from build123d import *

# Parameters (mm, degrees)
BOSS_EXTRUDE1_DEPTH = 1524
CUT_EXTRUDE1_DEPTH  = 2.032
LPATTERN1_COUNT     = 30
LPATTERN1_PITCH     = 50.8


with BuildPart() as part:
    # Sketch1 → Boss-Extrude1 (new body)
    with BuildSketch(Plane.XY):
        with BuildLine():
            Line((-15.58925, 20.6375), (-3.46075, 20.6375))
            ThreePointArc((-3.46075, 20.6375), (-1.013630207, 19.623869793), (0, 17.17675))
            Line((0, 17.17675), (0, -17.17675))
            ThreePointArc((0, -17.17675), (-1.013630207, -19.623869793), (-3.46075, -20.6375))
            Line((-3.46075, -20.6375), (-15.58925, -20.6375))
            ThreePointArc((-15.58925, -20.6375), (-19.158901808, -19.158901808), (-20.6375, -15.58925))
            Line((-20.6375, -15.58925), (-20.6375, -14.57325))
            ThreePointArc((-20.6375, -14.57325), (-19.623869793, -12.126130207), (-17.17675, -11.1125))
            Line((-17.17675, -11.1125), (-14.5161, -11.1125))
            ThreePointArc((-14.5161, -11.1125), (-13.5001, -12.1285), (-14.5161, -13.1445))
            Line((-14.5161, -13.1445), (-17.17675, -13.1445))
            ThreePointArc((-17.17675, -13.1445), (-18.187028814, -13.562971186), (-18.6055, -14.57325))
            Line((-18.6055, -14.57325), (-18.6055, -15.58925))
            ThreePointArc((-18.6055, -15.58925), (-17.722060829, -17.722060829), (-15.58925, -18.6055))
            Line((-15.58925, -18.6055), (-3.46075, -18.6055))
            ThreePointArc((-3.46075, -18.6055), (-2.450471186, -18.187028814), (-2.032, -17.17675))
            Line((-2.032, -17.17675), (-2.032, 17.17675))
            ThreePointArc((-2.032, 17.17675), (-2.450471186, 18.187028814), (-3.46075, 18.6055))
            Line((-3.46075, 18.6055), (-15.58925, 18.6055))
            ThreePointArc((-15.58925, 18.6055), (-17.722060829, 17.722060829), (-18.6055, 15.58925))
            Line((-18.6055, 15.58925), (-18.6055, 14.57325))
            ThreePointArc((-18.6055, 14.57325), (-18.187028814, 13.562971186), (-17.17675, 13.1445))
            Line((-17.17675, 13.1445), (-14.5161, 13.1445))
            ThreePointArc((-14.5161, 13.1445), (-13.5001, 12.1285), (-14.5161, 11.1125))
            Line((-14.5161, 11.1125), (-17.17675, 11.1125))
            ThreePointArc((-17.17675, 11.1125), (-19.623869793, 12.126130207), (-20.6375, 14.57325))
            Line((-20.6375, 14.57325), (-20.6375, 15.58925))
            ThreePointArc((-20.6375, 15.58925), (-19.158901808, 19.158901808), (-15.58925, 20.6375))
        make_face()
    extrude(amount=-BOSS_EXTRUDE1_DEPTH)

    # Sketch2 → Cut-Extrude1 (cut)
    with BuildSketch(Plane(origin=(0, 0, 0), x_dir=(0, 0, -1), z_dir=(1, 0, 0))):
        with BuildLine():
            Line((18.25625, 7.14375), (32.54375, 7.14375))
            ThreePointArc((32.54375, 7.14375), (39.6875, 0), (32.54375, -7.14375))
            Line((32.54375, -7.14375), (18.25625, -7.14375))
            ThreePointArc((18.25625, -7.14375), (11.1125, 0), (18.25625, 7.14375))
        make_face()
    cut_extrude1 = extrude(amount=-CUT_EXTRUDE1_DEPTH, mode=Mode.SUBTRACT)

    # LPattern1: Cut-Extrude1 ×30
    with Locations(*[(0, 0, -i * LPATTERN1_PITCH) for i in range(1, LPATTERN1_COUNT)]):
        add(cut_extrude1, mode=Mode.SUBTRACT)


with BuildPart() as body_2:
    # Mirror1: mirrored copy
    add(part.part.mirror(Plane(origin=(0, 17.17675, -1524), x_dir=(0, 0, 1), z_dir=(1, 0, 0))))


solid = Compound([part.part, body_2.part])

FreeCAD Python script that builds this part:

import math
import FreeCAD as App
import Part
import Sketcher

V = App.Vector
Q = App.Units.Quantity

doc = App.newDocument("Part")
body = doc.addObject("PartDesign::Body", "Body")

# Sketch on XY plane
sketch1 = doc.addObject("Sketcher::SketchObject", "Sketch")
body.addObject(sketch1)
sketch1.AttachmentSupport = (doc.XY_Plane, [""])
sketch1.MapMode = "FlatFace"
sketch1.addGeometry([
    Part.LineSegment(V(-3.5, 20.6, 0), V(-15.6, 20.6, 0)),  # 0
    Part.ArcOfCircle(Part.Circle(V(-15.6, 15.6, 0), V(0, 0, 1), 5), math.radians(90), math.radians(180)),  # 1
    Part.LineSegment(V(-20.6, 15.6, 0), V(-20.6, 14.6, 0)),  # 2
    Part.ArcOfCircle(Part.Circle(V(-17.2, 14.6, 0), V(0, 0, 1), 3.5), math.radians(180), math.radians(270)),  # 3
    Part.LineSegment(V(-17.2, 11.1, 0), V(-14.5, 11.1, 0)),  # 4
    Part.ArcOfCircle(Part.Circle(V(-14.5, 12.1, 0), V(0, 0, 1), 1), math.radians(-90), math.radians(90)),  # 5
    Part.LineSegment(V(-14.5, 13.1, 0), V(-17.2, 13.1, 0)),  # 6
    Part.ArcOfCircle(Part.Circle(V(-17.2, 14.6, 0), V(0, 0, 1), 1.4), math.radians(180), math.radians(270)),  # 7
    Part.LineSegment(V(-18.6, 14.6, 0), V(-18.6, 15.6, 0)),  # 8
    Part.ArcOfCircle(Part.Circle(V(-15.6, 15.6, 0), V(0, 0, 1), 3), math.radians(90), math.radians(180)),  # 9
    Part.LineSegment(V(-15.6, 18.6, 0), V(-3.5, 18.6, 0)),  # 10
    Part.ArcOfCircle(Part.Circle(V(-3.5, 17.2, 0), V(0, 0, 1), 1.4), math.radians(0), math.radians(90)),  # 11
    Part.LineSegment(V(-2, 17.2, 0), V(-2, -17.2, 0)),  # 12
    Part.ArcOfCircle(Part.Circle(V(-3.5, -17.2, 0), V(0, 0, 1), 1.4), math.radians(-90), math.radians(0)),  # 13
    Part.LineSegment(V(-3.5, -18.6, 0), V(-15.6, -18.6, 0)),  # 14
    Part.ArcOfCircle(Part.Circle(V(-15.6, -15.6, 0), V(0, 0, 1), 3), math.radians(180), math.radians(270)),  # 15
    Part.LineSegment(V(-18.6, -15.6, 0), V(-18.6, -14.6, 0)),  # 16
    Part.ArcOfCircle(Part.Circle(V(-17.2, -14.6, 0), V(0, 0, 1), 1.4), math.radians(90), math.radians(180)),  # 17
    Part.LineSegment(V(-17.2, -13.1, 0), V(-14.5, -13.1, 0)),  # 18
    Part.ArcOfCircle(Part.Circle(V(-14.5, -12.1, 0), V(0, 0, 1), 1), math.radians(-90), math.radians(90)),  # 19
    Part.LineSegment(V(-14.5, -11.1, 0), V(-17.2, -11.1, 0)),  # 20
    Part.ArcOfCircle(Part.Circle(V(-17.2, -14.6, 0), V(0, 0, 1), 3.5), math.radians(90), math.radians(180)),  # 21
    Part.LineSegment(V(-20.6, -14.6, 0), V(-20.6, -15.6, 0)),  # 22
    Part.ArcOfCircle(Part.Circle(V(-15.6, -15.6, 0), V(0, 0, 1), 5), math.radians(180), math.radians(270)),  # 23
    Part.LineSegment(V(-15.6, -20.6, 0), V(-3.5, -20.6, 0)),  # 24
    Part.ArcOfCircle(Part.Circle(V(-3.5, -17.2, 0), V(0, 0, 1), 3.5), math.radians(-90), math.radians(0)),  # 25
    Part.LineSegment(V(0, -17.2, 0), V(0, 17.2, 0)),  # 26
    Part.ArcOfCircle(Part.Circle(V(-3.5, 17.2, 0), V(0, 0, 1), 3.5), math.radians(0), math.radians(90)),  # 27
], False)
sketch1.addConstraint([
    Sketcher.Constraint("Tangent", 0, 2, 1, 1),
    Sketcher.Constraint("Tangent", 1, 2, 2, 1),
    Sketcher.Constraint("Tangent", 2, 2, 3, 1),
    Sketcher.Constraint("Tangent", 3, 2, 4, 1),
    Sketcher.Constraint("Tangent", 4, 2, 5, 1),
    Sketcher.Constraint("Tangent", 5, 2, 6, 1),
    Sketcher.Constraint("Tangent", 6, 2, 7, 2),
    Sketcher.Constraint("Tangent", 7, 1, 8, 1),
    Sketcher.Constraint("Tangent", 8, 2, 9, 2),
    Sketcher.Constraint("Tangent", 9, 1, 10, 1),
    Sketcher.Constraint("Tangent", 10, 2, 11, 2),
    Sketcher.Constraint("Tangent", 11, 1, 12, 1),
    Sketcher.Constraint("Tangent", 12, 2, 13, 2),
    Sketcher.Constraint("Tangent", 13, 1, 14, 1),
    Sketcher.Constraint("Tangent", 14, 2, 15, 2),
    Sketcher.Constraint("Tangent", 15, 1, 16, 1),
    Sketcher.Constraint("Tangent", 16, 2, 17, 2),
    Sketcher.Constraint("Tangent", 17, 1, 18, 1),
    Sketcher.Constraint("Tangent", 18, 2, 19, 1),
    Sketcher.Constraint("Tangent", 19, 2, 20, 1),
    Sketcher.Constraint("Tangent", 20, 2, 21, 1),
    Sketcher.Constraint("Tangent", 21, 2, 22, 1),
    Sketcher.Constraint("Tangent", 22, 2, 23, 1),
    Sketcher.Constraint("Tangent", 23, 2, 24, 1),
    Sketcher.Constraint("Tangent", 24, 2, 25, 1),
    Sketcher.Constraint("Tangent", 25, 2, 26, 1),
    Sketcher.Constraint("Tangent", 26, 2, 27, 1),
    Sketcher.Constraint("Tangent", 27, 2, 0, 1),
    Sketcher.Constraint("Horizontal", 0),
    Sketcher.Constraint("Vertical", 2),
    Sketcher.Constraint("Horizontal", 4),
    Sketcher.Constraint("Horizontal", 6),
    Sketcher.Constraint("Vertical", 8),
    Sketcher.Constraint("Horizontal", 10),
    Sketcher.Constraint("Vertical", 12),
    Sketcher.Constraint("Horizontal", 14),
    Sketcher.Constraint("Vertical", 16),
    Sketcher.Constraint("Horizontal", 18),
    Sketcher.Constraint("Horizontal", 20),
    Sketcher.Constraint("Vertical", 22),
    Sketcher.Constraint("Horizontal", 24),
    Sketcher.Constraint("Vertical", 26),
    Sketcher.Constraint("Coincident", 7, 3, 3, 3),
    Sketcher.Constraint("Coincident", 9, 3, 1, 3),
    Sketcher.Constraint("Coincident", 21, 3, 17, 3),
    Sketcher.Constraint("Coincident", 23, 3, 15, 3),
    Sketcher.Constraint("Coincident", 25, 3, 13, 3),
    Sketcher.Constraint("Coincident", 27, 3, 11, 3),
    Sketcher.Constraint("Equal", 7, 11),
    Sketcher.Constraint("Equal", 11, 13),
    Sketcher.Constraint("Equal", 9, 15),
    Sketcher.Constraint("Equal", 13, 17),
    Sketcher.Constraint("Symmetric", 25, 2, 26, 2, -1, 1),
    Sketcher.Constraint("Symmetric", 3, 3, 17, 3, -1),
    Sketcher.Constraint("Vertical", 5, 3, 19, 3),
    Sketcher.Constraint("Radius", 5, Q("0.04 in")),
    Sketcher.Constraint("DistanceY", 2, 2, 2, 1, Q("0.04 in")),
    Sketcher.Constraint("DistanceX", 3, 3, 11, 3, Q("0.54 in")),
    Sketcher.Constraint("DistanceY", 13, 3, 7, 3, Q("1.25 in")),
    Sketcher.Constraint("DistanceX", 0, 2, 0, 1, Q("0.4775 in")),
    Sketcher.Constraint("DistanceY", -1, 1, 0, 2, Q("0.8125 in")),
    Sketcher.Constraint("DistanceX", 1, 2, 5, 3, Q("0.241 in")),
])
pad1 = doc.addObject("PartDesign::Pad", "Pad")
body.addObject(pad1)
pad1.Profile = sketch1
pad1.Length = Q("60 in")
pad1.Reversed = True

# Sketch on YZ plane
sketch2 = doc.addObject("Sketcher::SketchObject", "Sketch001")
body.addObject(sketch2)
sketch2.AttachmentSupport = (doc.YZ_Plane, [""])
sketch2.MapMode = "FlatFace"
sketch2.addGeometry([
    Part.LineSegment(V(7, -33, 0), V(7, -18, 0)),
    Part.ArcOfCircle(Part.Circle(V(0, -18, 0), V(0, 0, 1), 7), math.radians(0), math.radians(180)),
    Part.LineSegment(V(-7, -18, 0), V(-7, -33, 0)),
    Part.ArcOfCircle(Part.Circle(V(0, -33, 0), V(0, 0, 1), 7), math.radians(180), math.radians(360)),
], False)
sketch2.addConstraint([
    Sketcher.Constraint("Tangent", 0, 2, 1, 1),
    Sketcher.Constraint("Tangent", 1, 2, 2, 1),
    Sketcher.Constraint("Tangent", 2, 2, 3, 1),
    Sketcher.Constraint("Tangent", 3, 2, 0, 1),
    Sketcher.Constraint("Vertical", 0),
    Sketcher.Constraint("Vertical", 2),
    Sketcher.Constraint("PointOnObject", 1, 3, -2),
    Sketcher.Constraint("Radius", 1, Q("0.28125 in")),
    Sketcher.Constraint("DistanceY", 0, 1, 0, 2, Q("0.5625 in")),
    Sketcher.Constraint("DistanceY", 1, 3, -1, 1, Q("0.71875 in")),
])
pocket1 = doc.addObject("PartDesign::Pocket", "Pocket")
body.addObject(pocket1)
pocket1.Profile = sketch2
pocket1.Length = Q("0.08 in")
doc.recompute()

linearpattern = doc.addObject("PartDesign::LinearPattern", "LinearPattern")
body.addObject(linearpattern)
linearpattern.Originals = [pocket1]
linearpattern.Direction = (doc.Z_Axis, [""])
linearpattern.Mode = "offset"
linearpattern.Offset = Q("2 in")
linearpattern.Occurrences = 30
linearpattern.Reversed = True
body.Tip = linearpattern
body2 = doc.addObject("PartDesign::Body", "Body001")
doc.recompute()

mirroring = doc.addObject("Part::Mirroring", "Mirroring")
mirroring.Source = body
mirroring.Base = V(0, 17.17675, -1524)
mirroring.Normal = V(1, 0, 0)
body2.BaseFeature = mirroring
doc.recompute()
mirroring.Visibility = False

doc.recompute()
